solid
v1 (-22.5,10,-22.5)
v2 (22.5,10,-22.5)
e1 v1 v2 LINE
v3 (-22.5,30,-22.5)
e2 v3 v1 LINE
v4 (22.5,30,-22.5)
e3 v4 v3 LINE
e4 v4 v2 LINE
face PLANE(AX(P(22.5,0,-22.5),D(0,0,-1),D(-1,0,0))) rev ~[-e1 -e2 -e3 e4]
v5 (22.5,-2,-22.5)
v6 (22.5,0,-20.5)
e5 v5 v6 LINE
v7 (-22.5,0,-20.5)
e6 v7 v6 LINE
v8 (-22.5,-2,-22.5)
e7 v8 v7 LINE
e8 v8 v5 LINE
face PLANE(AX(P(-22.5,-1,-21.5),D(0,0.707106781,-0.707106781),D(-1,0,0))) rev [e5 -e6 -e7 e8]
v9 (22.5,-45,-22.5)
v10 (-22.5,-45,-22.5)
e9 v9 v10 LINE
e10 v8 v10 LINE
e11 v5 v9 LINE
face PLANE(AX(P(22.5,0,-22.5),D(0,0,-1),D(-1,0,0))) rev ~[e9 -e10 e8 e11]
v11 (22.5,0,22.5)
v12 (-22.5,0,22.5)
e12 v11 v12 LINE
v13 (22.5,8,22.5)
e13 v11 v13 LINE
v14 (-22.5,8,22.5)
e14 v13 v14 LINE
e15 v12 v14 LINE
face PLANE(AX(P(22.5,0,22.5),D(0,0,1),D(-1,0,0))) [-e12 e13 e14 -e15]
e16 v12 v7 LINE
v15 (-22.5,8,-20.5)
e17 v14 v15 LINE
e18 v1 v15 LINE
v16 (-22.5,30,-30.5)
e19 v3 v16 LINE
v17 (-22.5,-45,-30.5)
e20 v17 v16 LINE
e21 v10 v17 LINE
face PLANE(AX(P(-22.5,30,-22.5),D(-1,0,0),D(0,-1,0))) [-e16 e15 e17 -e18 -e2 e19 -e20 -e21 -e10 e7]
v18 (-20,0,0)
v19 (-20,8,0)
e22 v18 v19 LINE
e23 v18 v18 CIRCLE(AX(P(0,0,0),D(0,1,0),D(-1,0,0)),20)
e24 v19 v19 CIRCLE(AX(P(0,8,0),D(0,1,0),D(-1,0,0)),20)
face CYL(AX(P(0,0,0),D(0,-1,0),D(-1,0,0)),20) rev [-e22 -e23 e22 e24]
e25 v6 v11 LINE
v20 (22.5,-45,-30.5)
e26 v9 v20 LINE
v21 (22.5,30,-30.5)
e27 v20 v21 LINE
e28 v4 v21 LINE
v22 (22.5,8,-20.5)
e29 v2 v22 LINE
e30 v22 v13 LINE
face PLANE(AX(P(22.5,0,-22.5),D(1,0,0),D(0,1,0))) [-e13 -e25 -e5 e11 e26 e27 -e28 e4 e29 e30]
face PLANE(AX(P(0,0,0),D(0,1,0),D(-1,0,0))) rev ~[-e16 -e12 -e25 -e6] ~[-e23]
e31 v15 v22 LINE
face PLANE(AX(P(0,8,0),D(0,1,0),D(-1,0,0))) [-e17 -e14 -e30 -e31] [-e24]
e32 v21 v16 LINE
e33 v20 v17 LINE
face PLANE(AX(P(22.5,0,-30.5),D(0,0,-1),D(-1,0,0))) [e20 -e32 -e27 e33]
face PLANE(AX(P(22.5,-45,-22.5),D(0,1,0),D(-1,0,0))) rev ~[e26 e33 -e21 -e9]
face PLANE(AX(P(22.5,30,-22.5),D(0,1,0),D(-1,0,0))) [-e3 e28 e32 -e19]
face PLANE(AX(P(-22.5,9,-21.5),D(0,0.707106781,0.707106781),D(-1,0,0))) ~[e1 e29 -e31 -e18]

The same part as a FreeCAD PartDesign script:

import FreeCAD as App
import Part
import Sketcher
Q = App.Units.Quantity


def edges_at(feature, points):
    """Names of the edges that pass closest to the given points."""
    edges = feature.Shape.Edges
    near = lambda p: min(range(len(edges)), key=lambda i: edges[i].distToShape(Part.Vertex(*p))[0])
    return sorted({f"Edge{near(p) + 1}" for p in points})

doc = App.newDocument("Part")
body = doc.addObject("PartDesign::Body", "Body")

sketch1 = body.newObject("Sketcher::SketchObject", "Sketch")
sketch1.AttachmentSupport = (doc.getObject("XZ_Plane"), [""])
sketch1.MapMode = "FlatFace"
sketch1.addGeometry(Part.LineSegment(App.Vector(-22, 22, 0), App.Vector(22, 22, 0)), False)
sketch1.addGeometry(Part.LineSegment(App.Vector(22, 22, 0), App.Vector(22, -22, 0)), False)
sketch1.addGeometry(Part.LineSegment(App.Vector(22, -22, 0), App.Vector(-22, -22, 0)), False)
sketch1.addGeometry(Part.LineSegment(App.Vector(-22, -22, 0), App.Vector(-22, 22, 0)), False)
sketch1.addGeometry(Part.Circle(App.Vector(0, 0, 0), App.Vector(0, 0, 1), 20), False)
sketch1.addConstraint(Sketcher.Constraint("Coincident", 0, 2, 1, 1))
sketch1.addConstraint(Sketcher.Constraint("Coincident", 1, 2, 2, 1))
sketch1.addConstraint(Sketcher.Constraint("Coincident", 2, 2, 3, 1))
sketch1.addConstraint(Sketcher.Constraint("Coincident", 3, 2, 0, 1))
sketch1.addConstraint(Sketcher.Constraint("Horizontal", 0))
sketch1.addConstraint(Sketcher.Constraint("Vertical", 1))
sketch1.addConstraint(Sketcher.Constraint("Horizontal", 2))
sketch1.addConstraint(Sketcher.Constraint("Vertical", 3))
sketch1.addConstraint(Sketcher.Constraint("Coincident", 4, 3, -1, 1))
sketch1.addConstraint(Sketcher.Constraint("Symmetric", 0, 2, 2, 2, -1, 1))
sketch1.addConstraint(Sketcher.Constraint("Equal", 2, 1))
sketch1.addConstraint(Sketcher.Constraint("Diameter", 4, Q("40 mm")))
sketch1.addConstraint(Sketcher.Constraint("DistanceX", 0, 1, 0, 2, Q("45 mm")))
pad1 = body.newObject("PartDesign::Pad", "Pad")
pad1.Profile = sketch1
pad1.Length = 8
pad1.Reversed = True

sketch2 = body.newObject("Sketcher::SketchObject", "Sketch001")
sketch2.AttachmentSupport = (doc.getObject("XY_Plane"), [""])
sketch2.MapMode = "FlatFace"
sketch2.AttachmentOffset = App.Placement(App.Vector(0, 0, -22.5), App.Rotation())
sketch2.addGeometry(Part.LineSegment(App.Vector(22, 30, 0), App.Vector(22, -45, 0)), False)
sketch2.addGeometry(Part.LineSegment(App.Vector(22, -45, 0), App.Vector(-22, -45, 0)), False)
sketch2.addGeometry(Part.LineSegment(App.Vector(-22, -45, 0), App.Vector(-22, 30, 0)), False)
sketch2.addGeometry(Part.LineSegment(App.Vector(-22, 30, 0), App.Vector(22, 30, 0)), False)
sketch2.addConstraint(Sketcher.Constraint("Coincident", 0, 2, 1, 1))
sketch2.addConstraint(Sketcher.Constraint("Coincident", 1, 2, 2, 1))
sketch2.addConstraint(Sketcher.Constraint("Coincident", 2, 2, 3, 1))
sketch2.addConstraint(Sketcher.Constraint("Coincident", 3, 2, 0, 1))
sketch2.addConstraint(Sketcher.Constraint("Vertical", 0))
sketch2.addConstraint(Sketcher.Constraint("Horizontal", 1))
sketch2.addConstraint(Sketcher.Constraint("Vertical", 2))
sketch2.addConstraint(Sketcher.Constraint("Horizontal", 3))
sketch2.addConstraint(Sketcher.Constraint("DistanceX", 1, 2, 1, 1, Q("45 mm")))
sketch2.addConstraint(Sketcher.Constraint("DistanceY", 0, 2, -1, 1, Q("45 mm")))
sketch2.addConstraint(Sketcher.Constraint("DistanceY", -1, 1, 2, 2, Q("30 mm")))
sketch2.addConstraint(Sketcher.Constraint("DistanceX", -1, 1, 0, 2, Q("22.5 mm")))
pad2 = body.newObject("PartDesign::Pad", "Pad001")
pad2.Profile = sketch2
pad2.Length = 8
pad2.Reversed = True
doc.recompute()

chamfer = body.newObject("PartDesign::Chamfer", "Chamfer")
chamfer.Base = (pad2, edges_at(pad2, [(0, 8, -22.5), (0, 0, -22.5)]))
chamfer.Size = 2

doc.recompute()
